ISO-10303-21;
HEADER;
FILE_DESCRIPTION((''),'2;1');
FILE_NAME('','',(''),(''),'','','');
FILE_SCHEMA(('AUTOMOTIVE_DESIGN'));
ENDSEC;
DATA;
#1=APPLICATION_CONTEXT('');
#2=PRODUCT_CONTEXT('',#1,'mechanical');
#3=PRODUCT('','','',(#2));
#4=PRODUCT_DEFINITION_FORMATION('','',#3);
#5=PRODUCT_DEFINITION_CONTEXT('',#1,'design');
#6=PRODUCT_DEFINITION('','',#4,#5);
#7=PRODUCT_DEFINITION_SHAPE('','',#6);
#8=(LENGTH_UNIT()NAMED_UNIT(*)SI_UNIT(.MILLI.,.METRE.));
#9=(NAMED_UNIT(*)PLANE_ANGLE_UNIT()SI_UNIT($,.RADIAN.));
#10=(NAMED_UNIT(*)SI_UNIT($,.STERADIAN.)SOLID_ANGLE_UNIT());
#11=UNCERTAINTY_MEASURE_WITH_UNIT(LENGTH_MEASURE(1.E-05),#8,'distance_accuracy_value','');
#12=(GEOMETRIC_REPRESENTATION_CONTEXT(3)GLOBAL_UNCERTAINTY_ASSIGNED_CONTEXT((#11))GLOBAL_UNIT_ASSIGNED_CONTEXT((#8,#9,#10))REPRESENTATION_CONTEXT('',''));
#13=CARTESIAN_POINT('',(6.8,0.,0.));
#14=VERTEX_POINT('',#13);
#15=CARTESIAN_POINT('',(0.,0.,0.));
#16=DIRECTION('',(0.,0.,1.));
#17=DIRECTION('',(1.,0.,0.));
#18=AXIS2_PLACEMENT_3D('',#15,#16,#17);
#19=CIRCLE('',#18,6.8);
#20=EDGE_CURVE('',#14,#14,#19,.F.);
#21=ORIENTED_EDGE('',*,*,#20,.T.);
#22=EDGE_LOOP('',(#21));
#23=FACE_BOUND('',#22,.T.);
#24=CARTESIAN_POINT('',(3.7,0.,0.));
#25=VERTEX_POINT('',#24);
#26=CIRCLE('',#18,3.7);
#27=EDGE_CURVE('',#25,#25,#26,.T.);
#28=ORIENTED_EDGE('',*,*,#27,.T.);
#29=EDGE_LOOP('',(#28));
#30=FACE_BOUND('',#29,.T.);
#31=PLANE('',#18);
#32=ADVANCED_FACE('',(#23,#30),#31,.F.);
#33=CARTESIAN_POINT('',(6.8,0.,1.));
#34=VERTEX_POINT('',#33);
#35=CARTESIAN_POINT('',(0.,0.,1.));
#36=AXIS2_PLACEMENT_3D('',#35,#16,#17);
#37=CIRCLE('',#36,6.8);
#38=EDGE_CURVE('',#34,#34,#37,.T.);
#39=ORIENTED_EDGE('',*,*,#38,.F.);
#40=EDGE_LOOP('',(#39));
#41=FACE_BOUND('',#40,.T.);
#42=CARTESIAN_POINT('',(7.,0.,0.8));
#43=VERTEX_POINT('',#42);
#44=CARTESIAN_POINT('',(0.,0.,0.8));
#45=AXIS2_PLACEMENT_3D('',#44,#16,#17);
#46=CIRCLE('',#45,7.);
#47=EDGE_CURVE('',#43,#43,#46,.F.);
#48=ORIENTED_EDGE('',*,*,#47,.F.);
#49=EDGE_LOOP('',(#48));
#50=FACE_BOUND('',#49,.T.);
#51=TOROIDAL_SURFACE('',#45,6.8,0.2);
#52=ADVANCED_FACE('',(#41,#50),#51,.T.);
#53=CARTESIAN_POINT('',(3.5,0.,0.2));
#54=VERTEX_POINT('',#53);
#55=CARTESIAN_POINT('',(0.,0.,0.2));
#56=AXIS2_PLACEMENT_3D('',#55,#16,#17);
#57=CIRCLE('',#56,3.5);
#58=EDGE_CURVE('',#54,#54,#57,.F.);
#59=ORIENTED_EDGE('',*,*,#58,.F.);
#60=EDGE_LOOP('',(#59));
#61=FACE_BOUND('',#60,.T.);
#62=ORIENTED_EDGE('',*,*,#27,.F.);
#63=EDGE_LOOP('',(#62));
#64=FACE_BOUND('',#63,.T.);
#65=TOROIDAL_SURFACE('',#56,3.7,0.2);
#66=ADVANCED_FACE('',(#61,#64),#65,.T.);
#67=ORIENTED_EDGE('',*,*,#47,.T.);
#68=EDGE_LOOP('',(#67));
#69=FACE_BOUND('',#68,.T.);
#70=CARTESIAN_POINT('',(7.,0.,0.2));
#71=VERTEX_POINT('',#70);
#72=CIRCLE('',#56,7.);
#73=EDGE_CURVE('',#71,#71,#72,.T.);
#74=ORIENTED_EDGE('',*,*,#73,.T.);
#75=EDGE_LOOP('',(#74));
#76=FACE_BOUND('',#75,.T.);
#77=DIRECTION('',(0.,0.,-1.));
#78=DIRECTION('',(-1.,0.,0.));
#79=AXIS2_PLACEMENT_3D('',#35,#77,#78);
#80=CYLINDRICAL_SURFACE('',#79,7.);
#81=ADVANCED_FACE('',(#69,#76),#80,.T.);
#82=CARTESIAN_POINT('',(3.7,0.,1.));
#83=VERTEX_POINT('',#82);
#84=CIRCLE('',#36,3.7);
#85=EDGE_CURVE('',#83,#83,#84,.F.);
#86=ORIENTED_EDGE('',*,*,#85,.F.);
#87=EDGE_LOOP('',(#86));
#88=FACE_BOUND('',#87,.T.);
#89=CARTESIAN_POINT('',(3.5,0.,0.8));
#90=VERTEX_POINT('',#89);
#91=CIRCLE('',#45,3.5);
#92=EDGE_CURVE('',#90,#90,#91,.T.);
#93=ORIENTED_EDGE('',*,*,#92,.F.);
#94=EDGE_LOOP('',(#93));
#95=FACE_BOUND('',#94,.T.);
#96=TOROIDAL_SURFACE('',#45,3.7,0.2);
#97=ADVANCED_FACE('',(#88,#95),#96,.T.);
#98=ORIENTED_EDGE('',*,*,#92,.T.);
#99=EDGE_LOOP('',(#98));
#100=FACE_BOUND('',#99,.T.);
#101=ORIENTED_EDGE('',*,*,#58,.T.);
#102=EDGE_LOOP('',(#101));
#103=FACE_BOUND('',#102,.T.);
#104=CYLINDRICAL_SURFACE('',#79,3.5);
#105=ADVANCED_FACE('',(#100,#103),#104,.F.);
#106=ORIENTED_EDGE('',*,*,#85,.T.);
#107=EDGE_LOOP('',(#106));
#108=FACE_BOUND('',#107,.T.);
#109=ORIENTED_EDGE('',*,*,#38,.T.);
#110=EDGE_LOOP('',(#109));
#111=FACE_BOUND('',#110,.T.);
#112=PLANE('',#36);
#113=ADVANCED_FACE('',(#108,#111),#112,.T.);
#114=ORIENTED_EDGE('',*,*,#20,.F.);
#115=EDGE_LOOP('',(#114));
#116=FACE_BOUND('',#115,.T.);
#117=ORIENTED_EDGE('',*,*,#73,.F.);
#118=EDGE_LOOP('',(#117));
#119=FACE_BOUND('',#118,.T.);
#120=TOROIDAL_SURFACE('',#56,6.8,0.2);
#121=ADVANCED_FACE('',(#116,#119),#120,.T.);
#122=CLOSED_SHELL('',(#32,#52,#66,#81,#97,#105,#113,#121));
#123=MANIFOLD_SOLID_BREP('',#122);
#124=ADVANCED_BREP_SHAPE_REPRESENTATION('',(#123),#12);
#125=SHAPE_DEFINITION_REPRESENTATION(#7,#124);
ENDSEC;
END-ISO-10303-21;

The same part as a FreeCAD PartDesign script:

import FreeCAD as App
import Part
import Sketcher
Q = App.Units.Quantity


def edges_at(feature, points):
    """Names of the edges that pass closest to the given points."""
    edges = feature.Shape.Edges
    near = lambda p: min(range(len(edges)), key=lambda i: edges[i].distToShape(Part.Vertex(*p))[0])
    return sorted({f"Edge{near(p) + 1}" for p in points})

doc = App.newDocument("Part")
params = doc.addObject("Spreadsheet::Sheet", "Params")
for row, (alias, value) in enumerate([
    ("sketch1_diameter", "14 mm"),
    ("sketch1_diameter2", "7 mm"),
    ("pad1_length", "1 mm"),
    ("fillet_radius", "0.2 mm"),
    ("fillet2_radius", "0.2 mm"),
], start=1):
    params.set(f"A{row}", alias)
    params.set(f"B{row}", "=" + value)
    params.setAlias(f"B{row}", alias)

body = doc.addObject("PartDesign::Body", "Body")

sketch1 = doc.addObject("Sketcher::SketchObject", "Sketch")
body.addObject(sketch1)
sketch1.AttachmentSupport = (doc.XY_Plane, [""])
sketch1.MapMode = "FlatFace"
sketch1.addGeometry([
    Part.Circle(App.Vector(0, 0, 0), App.Vector(0, 0, 1), 7),
    Part.Circle(App.Vector(0, 0, 0), App.Vector(0, 0, 1), 3.5),
], False)
sketch1.addConstraint([
    Sketcher.Constraint("Coincident", 0, 3, -1, 1),
    Sketcher.Constraint("Coincident", 1, 3, -1, 1),
    Sketcher.Constraint("Diameter", 0, Q("14 mm")),
    Sketcher.Constraint("Diameter", 1, Q("7 mm")),
])
sketch1.setExpression("Constraints[2]", "Params.sketch1_diameter")
sketch1.setExpression("Constraints[3]", "Params.sketch1_diameter2")
pad1 = doc.addObject("PartDesign::Pad", "Pad")
body.addObject(pad1)
pad1.Profile = sketch1
pad1.setExpression("Length", "Params.pad1_length")
doc.recompute()

fillet = doc.addObject("PartDesign::Fillet", "Fillet")
body.addObject(fillet)
fillet.Base = (pad1, edges_at(pad1, [(-7, 0, 0), (-7, 0, 1), (-3.5, 0, 1)]))
fillet.setExpression("Radius", "Params.fillet_radius")
doc.recompute()

fillet2 = doc.addObject("PartDesign::Fillet", "Fillet001")
body.addObject(fillet2)
fillet2.Base = (fillet, edges_at(fillet, [(-3.5, 0, 0)]))
fillet2.setExpression("Radius", "Params.fillet2_radius")

doc.recompute()
